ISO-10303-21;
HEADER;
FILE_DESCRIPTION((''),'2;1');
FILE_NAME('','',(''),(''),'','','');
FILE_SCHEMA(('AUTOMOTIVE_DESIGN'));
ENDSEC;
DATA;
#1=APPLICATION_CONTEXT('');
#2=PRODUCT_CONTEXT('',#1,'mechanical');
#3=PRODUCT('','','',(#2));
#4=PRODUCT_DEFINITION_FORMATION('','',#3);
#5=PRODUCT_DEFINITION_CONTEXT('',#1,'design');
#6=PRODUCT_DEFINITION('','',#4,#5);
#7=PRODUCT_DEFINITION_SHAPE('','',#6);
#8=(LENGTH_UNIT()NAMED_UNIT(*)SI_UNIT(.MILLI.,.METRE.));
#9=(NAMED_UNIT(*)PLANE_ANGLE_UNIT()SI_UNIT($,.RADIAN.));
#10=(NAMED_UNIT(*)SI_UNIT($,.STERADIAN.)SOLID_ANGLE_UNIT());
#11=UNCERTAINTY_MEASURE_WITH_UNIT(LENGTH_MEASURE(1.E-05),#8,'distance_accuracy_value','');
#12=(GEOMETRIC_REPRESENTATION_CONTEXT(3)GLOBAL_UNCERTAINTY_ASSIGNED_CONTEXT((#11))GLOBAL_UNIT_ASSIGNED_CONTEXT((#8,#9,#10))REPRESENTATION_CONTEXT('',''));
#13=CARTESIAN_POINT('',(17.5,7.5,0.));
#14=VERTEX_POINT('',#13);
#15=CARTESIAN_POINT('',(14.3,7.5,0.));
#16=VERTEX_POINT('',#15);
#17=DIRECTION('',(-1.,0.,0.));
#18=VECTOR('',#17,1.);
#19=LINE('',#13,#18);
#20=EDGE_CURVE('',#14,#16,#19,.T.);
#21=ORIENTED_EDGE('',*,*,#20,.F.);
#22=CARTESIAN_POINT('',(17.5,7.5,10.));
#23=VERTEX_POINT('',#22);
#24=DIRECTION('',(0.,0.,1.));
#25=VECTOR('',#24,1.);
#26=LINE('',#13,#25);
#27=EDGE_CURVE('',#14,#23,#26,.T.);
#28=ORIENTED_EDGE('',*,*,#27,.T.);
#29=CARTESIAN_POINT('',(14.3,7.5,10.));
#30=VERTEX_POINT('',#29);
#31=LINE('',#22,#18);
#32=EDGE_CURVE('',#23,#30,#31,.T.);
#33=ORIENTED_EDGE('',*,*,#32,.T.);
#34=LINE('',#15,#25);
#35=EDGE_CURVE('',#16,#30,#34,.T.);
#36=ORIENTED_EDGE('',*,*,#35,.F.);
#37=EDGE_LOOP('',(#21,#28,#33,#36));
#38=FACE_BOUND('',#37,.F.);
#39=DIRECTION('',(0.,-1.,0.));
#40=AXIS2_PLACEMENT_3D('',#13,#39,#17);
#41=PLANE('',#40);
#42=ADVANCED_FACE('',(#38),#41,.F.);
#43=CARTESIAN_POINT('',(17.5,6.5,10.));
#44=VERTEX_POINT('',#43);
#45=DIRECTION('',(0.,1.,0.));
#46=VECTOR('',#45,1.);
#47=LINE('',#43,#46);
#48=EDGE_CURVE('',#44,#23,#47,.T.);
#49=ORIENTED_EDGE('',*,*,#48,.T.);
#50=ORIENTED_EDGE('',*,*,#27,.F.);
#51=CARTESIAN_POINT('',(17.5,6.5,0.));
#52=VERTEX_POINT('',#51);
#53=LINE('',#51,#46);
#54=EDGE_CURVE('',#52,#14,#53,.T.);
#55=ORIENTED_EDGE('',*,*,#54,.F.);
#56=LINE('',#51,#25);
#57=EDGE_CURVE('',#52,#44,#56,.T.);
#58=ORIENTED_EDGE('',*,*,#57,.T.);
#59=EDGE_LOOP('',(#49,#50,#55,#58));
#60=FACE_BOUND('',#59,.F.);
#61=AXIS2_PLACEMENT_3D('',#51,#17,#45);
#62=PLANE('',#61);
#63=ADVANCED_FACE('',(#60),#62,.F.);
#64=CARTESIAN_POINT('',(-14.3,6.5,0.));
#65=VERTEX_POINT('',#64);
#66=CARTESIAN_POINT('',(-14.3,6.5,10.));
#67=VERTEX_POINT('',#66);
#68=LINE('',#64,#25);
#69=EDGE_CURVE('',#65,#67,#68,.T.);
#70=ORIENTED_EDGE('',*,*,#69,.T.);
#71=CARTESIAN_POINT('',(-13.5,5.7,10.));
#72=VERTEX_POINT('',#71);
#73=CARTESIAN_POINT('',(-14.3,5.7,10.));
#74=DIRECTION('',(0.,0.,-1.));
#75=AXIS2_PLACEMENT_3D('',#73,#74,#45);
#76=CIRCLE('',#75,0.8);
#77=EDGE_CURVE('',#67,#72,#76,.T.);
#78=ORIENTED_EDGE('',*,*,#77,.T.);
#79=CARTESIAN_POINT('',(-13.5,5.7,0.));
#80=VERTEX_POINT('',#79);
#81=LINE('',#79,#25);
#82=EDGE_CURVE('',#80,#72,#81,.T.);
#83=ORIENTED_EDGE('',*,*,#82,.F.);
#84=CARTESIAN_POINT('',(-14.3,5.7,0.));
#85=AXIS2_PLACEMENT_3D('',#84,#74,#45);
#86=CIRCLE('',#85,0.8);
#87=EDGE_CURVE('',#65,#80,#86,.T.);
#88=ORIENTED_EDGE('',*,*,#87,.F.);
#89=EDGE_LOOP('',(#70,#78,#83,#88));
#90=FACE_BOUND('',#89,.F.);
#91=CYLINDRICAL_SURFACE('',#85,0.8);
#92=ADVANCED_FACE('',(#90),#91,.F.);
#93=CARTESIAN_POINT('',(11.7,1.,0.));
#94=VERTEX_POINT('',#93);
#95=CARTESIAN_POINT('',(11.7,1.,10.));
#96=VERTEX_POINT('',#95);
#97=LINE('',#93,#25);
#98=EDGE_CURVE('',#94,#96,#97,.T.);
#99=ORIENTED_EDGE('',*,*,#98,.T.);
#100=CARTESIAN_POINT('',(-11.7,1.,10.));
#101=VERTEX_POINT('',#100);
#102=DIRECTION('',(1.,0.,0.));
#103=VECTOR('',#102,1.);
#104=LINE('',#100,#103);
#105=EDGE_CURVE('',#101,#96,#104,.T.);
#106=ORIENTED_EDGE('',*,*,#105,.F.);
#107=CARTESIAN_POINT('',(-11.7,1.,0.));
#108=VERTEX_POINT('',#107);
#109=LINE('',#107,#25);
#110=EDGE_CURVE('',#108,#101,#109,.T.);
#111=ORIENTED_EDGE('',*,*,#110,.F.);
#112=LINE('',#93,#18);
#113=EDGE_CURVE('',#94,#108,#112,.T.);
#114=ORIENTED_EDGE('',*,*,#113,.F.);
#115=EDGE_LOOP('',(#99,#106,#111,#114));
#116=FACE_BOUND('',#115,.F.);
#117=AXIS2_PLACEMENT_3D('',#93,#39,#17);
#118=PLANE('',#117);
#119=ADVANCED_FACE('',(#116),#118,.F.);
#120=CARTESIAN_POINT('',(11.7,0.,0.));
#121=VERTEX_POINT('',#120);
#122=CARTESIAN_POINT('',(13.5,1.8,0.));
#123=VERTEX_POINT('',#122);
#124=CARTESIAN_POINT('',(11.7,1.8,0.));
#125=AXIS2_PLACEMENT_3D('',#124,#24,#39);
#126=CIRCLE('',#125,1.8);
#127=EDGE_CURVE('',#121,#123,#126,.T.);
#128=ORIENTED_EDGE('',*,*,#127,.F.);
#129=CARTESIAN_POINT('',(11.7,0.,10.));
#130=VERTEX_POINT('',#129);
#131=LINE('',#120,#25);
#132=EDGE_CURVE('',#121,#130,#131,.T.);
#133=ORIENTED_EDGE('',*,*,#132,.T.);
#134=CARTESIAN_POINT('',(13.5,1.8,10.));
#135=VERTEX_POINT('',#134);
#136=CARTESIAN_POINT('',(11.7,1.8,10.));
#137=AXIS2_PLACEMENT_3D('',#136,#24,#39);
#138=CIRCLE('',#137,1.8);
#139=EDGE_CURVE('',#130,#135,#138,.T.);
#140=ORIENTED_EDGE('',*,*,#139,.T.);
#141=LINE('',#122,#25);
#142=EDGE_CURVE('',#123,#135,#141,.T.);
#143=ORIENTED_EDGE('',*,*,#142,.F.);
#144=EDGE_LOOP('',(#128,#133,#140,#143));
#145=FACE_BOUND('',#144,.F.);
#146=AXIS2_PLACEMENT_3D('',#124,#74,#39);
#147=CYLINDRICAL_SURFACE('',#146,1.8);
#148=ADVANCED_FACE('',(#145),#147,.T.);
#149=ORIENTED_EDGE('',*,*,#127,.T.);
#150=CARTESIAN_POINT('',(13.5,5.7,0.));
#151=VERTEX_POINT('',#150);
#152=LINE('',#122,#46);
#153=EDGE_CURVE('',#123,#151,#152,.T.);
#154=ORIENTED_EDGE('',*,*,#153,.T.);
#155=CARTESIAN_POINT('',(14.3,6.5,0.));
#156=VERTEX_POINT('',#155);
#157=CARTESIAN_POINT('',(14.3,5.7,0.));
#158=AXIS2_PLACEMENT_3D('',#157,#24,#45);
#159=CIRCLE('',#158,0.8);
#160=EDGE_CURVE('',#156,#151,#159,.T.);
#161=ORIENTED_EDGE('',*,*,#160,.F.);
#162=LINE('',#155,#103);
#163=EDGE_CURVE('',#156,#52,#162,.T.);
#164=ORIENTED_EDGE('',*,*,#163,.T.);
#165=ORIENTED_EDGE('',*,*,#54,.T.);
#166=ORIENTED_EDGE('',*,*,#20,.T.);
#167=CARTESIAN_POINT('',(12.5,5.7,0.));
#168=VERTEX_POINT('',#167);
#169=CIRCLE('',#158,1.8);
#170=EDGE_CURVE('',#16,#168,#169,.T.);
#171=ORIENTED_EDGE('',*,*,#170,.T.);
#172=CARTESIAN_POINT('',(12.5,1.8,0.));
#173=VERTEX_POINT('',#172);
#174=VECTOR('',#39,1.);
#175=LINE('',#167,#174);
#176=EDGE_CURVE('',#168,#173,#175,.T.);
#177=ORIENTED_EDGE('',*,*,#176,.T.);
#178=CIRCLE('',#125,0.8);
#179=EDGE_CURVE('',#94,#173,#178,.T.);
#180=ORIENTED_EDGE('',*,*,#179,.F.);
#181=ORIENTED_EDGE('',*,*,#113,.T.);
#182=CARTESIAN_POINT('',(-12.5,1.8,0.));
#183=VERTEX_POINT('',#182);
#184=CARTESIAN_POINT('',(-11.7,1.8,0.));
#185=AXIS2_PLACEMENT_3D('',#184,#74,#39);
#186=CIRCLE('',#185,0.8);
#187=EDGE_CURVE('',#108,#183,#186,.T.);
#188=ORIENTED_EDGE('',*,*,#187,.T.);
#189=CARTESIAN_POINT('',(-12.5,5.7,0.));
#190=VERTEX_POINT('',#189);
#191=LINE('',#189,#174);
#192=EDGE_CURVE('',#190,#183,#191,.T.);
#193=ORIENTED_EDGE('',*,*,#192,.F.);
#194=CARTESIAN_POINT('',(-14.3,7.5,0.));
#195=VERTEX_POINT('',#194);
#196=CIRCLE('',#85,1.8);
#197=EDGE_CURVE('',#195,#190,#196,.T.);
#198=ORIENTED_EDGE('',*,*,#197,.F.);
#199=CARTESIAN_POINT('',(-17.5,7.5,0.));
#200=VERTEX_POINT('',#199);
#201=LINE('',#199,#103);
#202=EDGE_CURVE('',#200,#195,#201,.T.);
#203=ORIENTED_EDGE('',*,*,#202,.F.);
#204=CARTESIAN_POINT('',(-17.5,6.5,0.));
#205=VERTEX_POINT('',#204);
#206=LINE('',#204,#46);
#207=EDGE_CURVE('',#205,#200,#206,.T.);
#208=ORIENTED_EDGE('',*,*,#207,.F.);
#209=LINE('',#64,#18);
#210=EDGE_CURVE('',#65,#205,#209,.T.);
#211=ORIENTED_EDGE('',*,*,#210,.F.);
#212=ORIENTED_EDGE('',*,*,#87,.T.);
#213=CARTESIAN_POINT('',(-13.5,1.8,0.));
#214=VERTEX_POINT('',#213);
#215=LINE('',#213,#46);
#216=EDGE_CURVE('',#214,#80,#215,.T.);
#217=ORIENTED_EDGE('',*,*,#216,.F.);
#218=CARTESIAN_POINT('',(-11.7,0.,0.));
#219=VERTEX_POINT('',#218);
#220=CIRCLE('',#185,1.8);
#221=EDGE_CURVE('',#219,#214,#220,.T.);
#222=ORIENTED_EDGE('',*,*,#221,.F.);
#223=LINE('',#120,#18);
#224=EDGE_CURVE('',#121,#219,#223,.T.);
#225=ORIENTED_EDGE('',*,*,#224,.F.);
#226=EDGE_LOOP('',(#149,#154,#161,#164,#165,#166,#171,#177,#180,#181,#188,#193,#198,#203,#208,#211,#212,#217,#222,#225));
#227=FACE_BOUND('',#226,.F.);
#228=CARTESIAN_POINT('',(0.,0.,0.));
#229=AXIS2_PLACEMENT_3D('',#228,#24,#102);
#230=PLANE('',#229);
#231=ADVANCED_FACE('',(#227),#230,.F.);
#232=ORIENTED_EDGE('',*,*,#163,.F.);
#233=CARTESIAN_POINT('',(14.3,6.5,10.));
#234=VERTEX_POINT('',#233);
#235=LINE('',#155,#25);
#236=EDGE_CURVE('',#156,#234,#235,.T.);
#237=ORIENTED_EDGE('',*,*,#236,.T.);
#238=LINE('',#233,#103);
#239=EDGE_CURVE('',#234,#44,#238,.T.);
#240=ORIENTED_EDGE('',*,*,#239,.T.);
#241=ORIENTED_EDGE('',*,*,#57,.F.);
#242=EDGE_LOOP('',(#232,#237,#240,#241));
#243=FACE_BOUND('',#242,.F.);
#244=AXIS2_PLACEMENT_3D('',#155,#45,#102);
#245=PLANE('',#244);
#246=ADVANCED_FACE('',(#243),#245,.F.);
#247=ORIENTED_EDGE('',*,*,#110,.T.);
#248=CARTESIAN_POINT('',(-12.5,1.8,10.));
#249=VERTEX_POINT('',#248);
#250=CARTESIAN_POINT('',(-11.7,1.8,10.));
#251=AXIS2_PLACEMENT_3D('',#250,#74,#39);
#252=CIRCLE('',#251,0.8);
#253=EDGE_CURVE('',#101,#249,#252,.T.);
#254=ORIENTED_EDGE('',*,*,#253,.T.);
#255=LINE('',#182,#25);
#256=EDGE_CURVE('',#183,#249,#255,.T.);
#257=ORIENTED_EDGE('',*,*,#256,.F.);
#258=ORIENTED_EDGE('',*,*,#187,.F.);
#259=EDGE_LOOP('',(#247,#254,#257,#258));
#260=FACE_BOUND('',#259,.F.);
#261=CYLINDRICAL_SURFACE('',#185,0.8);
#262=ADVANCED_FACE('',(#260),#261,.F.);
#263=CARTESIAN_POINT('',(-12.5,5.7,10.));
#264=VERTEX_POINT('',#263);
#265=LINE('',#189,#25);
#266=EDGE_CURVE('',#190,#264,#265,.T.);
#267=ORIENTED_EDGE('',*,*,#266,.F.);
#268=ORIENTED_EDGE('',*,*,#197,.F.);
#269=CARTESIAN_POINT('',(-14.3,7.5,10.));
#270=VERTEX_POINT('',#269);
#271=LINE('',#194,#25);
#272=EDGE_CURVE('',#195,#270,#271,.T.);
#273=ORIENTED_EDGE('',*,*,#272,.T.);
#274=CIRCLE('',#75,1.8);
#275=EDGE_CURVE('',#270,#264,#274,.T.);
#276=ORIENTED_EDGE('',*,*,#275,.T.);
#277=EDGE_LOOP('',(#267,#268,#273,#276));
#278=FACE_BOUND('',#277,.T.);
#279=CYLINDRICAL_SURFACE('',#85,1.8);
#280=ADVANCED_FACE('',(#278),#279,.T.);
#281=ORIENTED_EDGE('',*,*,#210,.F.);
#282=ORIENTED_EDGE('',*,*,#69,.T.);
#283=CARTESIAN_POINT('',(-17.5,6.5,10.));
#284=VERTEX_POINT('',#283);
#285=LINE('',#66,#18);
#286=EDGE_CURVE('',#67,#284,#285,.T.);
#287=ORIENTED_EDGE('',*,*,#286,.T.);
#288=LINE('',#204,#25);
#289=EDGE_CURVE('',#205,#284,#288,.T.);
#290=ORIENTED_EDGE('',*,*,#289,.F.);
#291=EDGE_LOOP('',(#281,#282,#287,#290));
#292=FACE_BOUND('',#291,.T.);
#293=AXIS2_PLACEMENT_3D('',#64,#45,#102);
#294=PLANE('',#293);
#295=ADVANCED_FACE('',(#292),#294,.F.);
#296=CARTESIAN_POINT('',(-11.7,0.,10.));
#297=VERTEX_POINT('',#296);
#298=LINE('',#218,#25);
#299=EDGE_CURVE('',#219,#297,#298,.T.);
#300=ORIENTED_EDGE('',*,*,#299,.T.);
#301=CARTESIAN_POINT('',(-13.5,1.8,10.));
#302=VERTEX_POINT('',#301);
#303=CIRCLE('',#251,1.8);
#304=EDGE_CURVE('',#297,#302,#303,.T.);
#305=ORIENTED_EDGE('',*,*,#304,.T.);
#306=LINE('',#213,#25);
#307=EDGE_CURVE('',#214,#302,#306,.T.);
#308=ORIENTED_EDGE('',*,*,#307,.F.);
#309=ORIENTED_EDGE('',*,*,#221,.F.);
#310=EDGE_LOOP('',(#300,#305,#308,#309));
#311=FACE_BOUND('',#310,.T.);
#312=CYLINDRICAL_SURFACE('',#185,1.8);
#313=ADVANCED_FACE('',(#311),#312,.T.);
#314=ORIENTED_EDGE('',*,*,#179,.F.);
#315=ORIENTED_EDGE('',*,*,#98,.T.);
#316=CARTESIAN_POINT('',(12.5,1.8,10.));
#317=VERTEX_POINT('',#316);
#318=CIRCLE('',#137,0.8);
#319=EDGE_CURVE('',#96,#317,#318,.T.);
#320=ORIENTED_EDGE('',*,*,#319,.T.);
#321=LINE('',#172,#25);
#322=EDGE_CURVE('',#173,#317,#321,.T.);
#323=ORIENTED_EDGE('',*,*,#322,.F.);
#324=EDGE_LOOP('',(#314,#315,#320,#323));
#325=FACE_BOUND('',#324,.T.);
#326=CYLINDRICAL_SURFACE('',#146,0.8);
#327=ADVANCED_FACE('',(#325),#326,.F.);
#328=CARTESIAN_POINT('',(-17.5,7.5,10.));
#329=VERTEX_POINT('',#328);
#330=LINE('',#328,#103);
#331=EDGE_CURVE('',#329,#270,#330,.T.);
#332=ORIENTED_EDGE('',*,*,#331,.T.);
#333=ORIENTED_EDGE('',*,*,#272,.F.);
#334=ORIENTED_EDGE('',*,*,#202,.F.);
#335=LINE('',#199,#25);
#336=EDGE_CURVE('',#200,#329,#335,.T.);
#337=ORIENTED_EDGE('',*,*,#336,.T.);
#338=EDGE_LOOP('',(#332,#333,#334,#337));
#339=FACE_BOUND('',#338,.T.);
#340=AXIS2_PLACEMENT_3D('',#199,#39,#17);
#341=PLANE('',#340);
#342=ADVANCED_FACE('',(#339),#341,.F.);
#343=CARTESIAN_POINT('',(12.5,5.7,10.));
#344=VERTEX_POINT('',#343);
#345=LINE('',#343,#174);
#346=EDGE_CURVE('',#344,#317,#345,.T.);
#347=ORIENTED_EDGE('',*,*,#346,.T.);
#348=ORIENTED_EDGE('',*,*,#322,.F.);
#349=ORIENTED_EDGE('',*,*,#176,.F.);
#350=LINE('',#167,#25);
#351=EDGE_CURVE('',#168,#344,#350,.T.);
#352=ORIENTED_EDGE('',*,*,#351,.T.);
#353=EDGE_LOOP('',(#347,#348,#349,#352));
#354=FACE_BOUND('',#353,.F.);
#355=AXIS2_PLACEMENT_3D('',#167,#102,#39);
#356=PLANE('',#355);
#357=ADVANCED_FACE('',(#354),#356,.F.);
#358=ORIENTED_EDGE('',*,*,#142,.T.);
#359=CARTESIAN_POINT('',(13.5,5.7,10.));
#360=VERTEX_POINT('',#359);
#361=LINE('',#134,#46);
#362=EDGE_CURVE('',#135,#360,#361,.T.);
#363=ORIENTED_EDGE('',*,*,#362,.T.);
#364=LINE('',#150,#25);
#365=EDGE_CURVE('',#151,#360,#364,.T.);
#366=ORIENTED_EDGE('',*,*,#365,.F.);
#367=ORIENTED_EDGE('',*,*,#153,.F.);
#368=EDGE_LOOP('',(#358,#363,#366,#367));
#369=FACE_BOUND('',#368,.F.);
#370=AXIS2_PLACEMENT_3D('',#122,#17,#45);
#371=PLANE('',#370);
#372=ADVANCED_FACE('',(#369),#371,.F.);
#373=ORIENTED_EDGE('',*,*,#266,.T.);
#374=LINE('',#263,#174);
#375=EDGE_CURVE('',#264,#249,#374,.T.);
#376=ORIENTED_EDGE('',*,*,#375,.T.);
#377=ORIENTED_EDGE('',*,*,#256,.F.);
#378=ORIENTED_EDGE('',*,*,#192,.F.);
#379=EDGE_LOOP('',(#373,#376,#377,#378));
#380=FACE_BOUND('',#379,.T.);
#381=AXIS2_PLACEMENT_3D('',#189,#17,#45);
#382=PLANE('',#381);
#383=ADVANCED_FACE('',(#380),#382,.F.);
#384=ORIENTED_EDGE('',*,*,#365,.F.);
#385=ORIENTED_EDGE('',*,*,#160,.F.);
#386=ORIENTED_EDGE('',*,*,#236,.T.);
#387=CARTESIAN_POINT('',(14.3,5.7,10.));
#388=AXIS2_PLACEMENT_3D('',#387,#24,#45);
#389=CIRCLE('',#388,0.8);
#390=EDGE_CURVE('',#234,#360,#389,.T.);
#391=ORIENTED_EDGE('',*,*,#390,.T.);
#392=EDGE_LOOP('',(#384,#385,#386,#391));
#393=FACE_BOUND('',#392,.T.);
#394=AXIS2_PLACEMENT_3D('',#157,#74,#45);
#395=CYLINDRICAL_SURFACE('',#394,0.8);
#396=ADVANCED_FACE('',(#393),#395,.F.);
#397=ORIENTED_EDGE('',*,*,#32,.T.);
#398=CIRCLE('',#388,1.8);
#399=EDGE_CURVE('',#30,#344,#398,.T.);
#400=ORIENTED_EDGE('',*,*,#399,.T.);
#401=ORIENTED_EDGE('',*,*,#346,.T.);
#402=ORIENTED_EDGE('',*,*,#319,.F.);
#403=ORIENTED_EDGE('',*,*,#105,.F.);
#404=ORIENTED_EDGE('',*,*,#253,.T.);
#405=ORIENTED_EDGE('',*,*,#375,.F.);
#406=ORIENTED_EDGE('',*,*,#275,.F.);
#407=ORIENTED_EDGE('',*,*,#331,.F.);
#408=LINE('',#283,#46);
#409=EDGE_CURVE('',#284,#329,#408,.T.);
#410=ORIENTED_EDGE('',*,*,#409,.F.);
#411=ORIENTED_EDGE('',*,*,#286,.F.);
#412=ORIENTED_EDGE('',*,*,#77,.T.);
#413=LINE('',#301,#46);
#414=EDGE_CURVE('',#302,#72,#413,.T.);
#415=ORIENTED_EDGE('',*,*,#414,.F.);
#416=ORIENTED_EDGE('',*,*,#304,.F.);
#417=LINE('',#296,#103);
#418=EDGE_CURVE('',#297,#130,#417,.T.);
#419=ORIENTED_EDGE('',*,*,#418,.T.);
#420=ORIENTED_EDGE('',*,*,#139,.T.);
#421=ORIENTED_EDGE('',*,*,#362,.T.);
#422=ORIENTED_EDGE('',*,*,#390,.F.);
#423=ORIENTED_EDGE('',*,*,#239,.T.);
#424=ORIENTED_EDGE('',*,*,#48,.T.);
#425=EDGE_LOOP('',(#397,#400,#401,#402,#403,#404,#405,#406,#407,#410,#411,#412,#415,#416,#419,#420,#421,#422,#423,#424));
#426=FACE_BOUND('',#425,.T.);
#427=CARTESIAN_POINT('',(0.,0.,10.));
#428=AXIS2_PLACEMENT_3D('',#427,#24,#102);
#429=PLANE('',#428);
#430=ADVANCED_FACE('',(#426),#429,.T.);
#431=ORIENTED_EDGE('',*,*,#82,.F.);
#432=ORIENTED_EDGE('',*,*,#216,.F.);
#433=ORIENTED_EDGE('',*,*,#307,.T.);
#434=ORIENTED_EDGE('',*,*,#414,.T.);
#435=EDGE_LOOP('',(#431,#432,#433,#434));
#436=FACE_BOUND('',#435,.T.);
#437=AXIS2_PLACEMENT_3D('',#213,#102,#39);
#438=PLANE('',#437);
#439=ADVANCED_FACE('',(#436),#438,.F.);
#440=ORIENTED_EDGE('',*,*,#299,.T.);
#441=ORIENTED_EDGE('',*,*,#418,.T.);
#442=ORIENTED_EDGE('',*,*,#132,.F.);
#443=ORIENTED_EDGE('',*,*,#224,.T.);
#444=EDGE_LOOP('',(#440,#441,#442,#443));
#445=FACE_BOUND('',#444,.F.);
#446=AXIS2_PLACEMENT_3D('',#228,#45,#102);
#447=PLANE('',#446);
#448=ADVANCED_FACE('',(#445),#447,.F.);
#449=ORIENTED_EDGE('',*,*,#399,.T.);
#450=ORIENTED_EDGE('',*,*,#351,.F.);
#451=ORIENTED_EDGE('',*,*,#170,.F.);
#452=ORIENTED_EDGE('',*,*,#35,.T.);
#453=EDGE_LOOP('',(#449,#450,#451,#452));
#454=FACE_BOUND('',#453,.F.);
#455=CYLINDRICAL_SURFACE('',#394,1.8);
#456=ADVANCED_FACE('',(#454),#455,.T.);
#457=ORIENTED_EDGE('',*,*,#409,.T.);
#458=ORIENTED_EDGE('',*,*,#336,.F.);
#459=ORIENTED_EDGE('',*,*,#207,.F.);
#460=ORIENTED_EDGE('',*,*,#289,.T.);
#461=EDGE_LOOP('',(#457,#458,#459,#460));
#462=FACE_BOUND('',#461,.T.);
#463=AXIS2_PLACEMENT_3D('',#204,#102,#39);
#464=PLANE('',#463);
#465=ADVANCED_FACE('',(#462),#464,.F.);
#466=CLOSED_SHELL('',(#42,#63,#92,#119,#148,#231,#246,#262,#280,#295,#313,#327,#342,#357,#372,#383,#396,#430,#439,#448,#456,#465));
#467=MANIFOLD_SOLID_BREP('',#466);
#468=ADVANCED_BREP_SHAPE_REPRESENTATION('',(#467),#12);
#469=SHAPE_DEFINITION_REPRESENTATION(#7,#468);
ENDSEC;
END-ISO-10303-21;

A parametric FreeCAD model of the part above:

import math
import FreeCAD as App
import Part
import Sketcher
from FreeCAD import Vector

doc = App.newDocument("Part")
body = doc.addObject("PartDesign::Body", "Body")

# Sketch on XY plane
sketch1 = doc.addObject("Sketcher::SketchObject", "Sketch")
body.addObject(sketch1)
sketch1.AttachmentSupport = (doc.XY_Plane, [""])
sketch1.MapMode = "FlatFace"
sketch1.addGeometry(Part.LineSegment(Vector(0, 1, 0), Vector(0, 0, 0)), False)
sketch1.addGeometry(Part.LineSegment(Vector(0, 0, 0), Vector(11.7, 0, 0)), False)
sketch1.addGeometry(Part.ArcOfCircle(Part.Circle(Vector(11.7, 1.8, 0), Vector(0, 0, 1), 1.8), math.radians(-90), math.radians(0)), False)
sketch1.addGeometry(Part.LineSegment(Vector(13.5, 1.8, 0), Vector(13.5, 5.7, 0)), False)
sketch1.addGeometry(Part.ArcOfCircle(Part.Circle(Vector(14.3, 5.7, 0), Vector(0, 0, 1), 0.8), math.radians(90), math.radians(180)), False)
sketch1.addGeometry(Part.LineSegment(Vector(14.3, 6.5, 0), Vector(17.5, 6.5, 0)), False)
sketch1.addGeometry(Part.LineSegment(Vector(17.5, 6.5, 0), Vector(17.5, 7.5, 0)), False)
sketch1.addGeometry(Part.LineSegment(Vector(17.5, 7.5, 0), Vector(14.3, 7.5, 0)), False)
sketch1.addGeometry(Part.ArcOfCircle(Part.Circle(Vector(14.3, 5.7, 0), Vector(0, 0, 1), 1.8), math.radians(90), math.radians(180)), False)
sketch1.addGeometry(Part.LineSegment(Vector(12.5, 5.7, 0), Vector(12.5, 1.8, 0)), False)
sketch1.addGeometry(Part.ArcOfCircle(Part.Circle(Vector(11.7, 1.8, 0), Vector(0, 0, 1), 0.8), math.radians(-90), math.radians(0)), False)
sketch1.addGeometry(Part.LineSegment(Vector(11.7, 1, 0), Vector(0, 1, 0)), False)
sketch1.addConstraint(Sketcher.Constraint("Coincident", 0, 2, 1, 1))
sketch1.addConstraint(Sketcher.Constraint("Tangent", 1, 2, 2, 1))
sketch1.addConstraint(Sketcher.Constraint("Tangent", 2, 2, 3, 1))
sketch1.addConstraint(Sketcher.Constraint("Tangent", 3, 2, 4, 2))
sketch1.addConstraint(Sketcher.Constraint("Tangent", 4, 1, 5, 1))
sketch1.addConstraint(Sketcher.Constraint("Coincident", 5, 2, 6, 1))
sketch1.addConstraint(Sketcher.Constraint("Coincident", 6, 2, 7, 1))
sketch1.addConstraint(Sketcher.Constraint("Tangent", 7, 2, 8, 1))
sketch1.addConstraint(Sketcher.Constraint("Tangent", 8, 2, 9, 1))
sketch1.addConstraint(Sketcher.Constraint("Tangent", 9, 2, 10, 2))
sketch1.addConstraint(Sketcher.Constraint("Tangent", 10, 1, 11, 1))
sketch1.addConstraint(Sketcher.Constraint("Coincident", 11, 2, 0, 1))
sketch1.addConstraint(Sketcher.Constraint("Vertical", 0))
sketch1.addConstraint(Sketcher.Constraint("Horizontal", 1))
sketch1.addConstraint(Sketcher.Constraint("Vertical", 3))
sketch1.addConstraint(Sketcher.Constraint("Horizontal", 5))
sketch1.addConstraint(Sketcher.Constraint("Vertical", 6))
sketch1.addConstraint(Sketcher.Constraint("Horizontal", 7))
sketch1.addConstraint(Sketcher.Constraint("Vertical", 9))
sketch1.addConstraint(Sketcher.Constraint("Horizontal", 11))
sketch1.addConstraint(Sketcher.Constraint("Coincident", 0, 2, -1, 1))
sketch1.addConstraint(Sketcher.Constraint("Coincident", 8, 3, 4, 3))
sketch1.addConstraint(Sketcher.Constraint("Coincident", 10, 3, 2, 3))
sketch1.addConstraint(Sketcher.Constraint("Equal", 2, 8))
sketch1.addConstraint(Sketcher.Constraint("Radius", 4, 0.8))
sketch1.addConstraint(Sketcher.Constraint("DistanceY", 0, 2, 0, 1, 1.0))
sketch1.addConstraint(Sketcher.Constraint("DistanceY", -1, 1, 6, 2, 7.5))
sketch1.addConstraint(Sketcher.Constraint("DistanceX", 1, 1, 1, 2, 11.7))
sketch1.addConstraint(Sketcher.Constraint("DistanceX", 5, 1, 5, 2, 3.2))
pad1 = doc.addObject("PartDesign::Pad", "Pad")
body.addObject(pad1)
pad1.Profile = sketch1
pad1.Length = 10
doc.recompute()

mirrored = doc.addObject("PartDesign::Mirrored", "Mirrored")
body.addObject(mirrored)
mirrored.Originals = [pad1]
mirrored.MirrorPlane = (doc.YZ_Plane, [""])
body.Tip = mirrored

doc.recompute()
